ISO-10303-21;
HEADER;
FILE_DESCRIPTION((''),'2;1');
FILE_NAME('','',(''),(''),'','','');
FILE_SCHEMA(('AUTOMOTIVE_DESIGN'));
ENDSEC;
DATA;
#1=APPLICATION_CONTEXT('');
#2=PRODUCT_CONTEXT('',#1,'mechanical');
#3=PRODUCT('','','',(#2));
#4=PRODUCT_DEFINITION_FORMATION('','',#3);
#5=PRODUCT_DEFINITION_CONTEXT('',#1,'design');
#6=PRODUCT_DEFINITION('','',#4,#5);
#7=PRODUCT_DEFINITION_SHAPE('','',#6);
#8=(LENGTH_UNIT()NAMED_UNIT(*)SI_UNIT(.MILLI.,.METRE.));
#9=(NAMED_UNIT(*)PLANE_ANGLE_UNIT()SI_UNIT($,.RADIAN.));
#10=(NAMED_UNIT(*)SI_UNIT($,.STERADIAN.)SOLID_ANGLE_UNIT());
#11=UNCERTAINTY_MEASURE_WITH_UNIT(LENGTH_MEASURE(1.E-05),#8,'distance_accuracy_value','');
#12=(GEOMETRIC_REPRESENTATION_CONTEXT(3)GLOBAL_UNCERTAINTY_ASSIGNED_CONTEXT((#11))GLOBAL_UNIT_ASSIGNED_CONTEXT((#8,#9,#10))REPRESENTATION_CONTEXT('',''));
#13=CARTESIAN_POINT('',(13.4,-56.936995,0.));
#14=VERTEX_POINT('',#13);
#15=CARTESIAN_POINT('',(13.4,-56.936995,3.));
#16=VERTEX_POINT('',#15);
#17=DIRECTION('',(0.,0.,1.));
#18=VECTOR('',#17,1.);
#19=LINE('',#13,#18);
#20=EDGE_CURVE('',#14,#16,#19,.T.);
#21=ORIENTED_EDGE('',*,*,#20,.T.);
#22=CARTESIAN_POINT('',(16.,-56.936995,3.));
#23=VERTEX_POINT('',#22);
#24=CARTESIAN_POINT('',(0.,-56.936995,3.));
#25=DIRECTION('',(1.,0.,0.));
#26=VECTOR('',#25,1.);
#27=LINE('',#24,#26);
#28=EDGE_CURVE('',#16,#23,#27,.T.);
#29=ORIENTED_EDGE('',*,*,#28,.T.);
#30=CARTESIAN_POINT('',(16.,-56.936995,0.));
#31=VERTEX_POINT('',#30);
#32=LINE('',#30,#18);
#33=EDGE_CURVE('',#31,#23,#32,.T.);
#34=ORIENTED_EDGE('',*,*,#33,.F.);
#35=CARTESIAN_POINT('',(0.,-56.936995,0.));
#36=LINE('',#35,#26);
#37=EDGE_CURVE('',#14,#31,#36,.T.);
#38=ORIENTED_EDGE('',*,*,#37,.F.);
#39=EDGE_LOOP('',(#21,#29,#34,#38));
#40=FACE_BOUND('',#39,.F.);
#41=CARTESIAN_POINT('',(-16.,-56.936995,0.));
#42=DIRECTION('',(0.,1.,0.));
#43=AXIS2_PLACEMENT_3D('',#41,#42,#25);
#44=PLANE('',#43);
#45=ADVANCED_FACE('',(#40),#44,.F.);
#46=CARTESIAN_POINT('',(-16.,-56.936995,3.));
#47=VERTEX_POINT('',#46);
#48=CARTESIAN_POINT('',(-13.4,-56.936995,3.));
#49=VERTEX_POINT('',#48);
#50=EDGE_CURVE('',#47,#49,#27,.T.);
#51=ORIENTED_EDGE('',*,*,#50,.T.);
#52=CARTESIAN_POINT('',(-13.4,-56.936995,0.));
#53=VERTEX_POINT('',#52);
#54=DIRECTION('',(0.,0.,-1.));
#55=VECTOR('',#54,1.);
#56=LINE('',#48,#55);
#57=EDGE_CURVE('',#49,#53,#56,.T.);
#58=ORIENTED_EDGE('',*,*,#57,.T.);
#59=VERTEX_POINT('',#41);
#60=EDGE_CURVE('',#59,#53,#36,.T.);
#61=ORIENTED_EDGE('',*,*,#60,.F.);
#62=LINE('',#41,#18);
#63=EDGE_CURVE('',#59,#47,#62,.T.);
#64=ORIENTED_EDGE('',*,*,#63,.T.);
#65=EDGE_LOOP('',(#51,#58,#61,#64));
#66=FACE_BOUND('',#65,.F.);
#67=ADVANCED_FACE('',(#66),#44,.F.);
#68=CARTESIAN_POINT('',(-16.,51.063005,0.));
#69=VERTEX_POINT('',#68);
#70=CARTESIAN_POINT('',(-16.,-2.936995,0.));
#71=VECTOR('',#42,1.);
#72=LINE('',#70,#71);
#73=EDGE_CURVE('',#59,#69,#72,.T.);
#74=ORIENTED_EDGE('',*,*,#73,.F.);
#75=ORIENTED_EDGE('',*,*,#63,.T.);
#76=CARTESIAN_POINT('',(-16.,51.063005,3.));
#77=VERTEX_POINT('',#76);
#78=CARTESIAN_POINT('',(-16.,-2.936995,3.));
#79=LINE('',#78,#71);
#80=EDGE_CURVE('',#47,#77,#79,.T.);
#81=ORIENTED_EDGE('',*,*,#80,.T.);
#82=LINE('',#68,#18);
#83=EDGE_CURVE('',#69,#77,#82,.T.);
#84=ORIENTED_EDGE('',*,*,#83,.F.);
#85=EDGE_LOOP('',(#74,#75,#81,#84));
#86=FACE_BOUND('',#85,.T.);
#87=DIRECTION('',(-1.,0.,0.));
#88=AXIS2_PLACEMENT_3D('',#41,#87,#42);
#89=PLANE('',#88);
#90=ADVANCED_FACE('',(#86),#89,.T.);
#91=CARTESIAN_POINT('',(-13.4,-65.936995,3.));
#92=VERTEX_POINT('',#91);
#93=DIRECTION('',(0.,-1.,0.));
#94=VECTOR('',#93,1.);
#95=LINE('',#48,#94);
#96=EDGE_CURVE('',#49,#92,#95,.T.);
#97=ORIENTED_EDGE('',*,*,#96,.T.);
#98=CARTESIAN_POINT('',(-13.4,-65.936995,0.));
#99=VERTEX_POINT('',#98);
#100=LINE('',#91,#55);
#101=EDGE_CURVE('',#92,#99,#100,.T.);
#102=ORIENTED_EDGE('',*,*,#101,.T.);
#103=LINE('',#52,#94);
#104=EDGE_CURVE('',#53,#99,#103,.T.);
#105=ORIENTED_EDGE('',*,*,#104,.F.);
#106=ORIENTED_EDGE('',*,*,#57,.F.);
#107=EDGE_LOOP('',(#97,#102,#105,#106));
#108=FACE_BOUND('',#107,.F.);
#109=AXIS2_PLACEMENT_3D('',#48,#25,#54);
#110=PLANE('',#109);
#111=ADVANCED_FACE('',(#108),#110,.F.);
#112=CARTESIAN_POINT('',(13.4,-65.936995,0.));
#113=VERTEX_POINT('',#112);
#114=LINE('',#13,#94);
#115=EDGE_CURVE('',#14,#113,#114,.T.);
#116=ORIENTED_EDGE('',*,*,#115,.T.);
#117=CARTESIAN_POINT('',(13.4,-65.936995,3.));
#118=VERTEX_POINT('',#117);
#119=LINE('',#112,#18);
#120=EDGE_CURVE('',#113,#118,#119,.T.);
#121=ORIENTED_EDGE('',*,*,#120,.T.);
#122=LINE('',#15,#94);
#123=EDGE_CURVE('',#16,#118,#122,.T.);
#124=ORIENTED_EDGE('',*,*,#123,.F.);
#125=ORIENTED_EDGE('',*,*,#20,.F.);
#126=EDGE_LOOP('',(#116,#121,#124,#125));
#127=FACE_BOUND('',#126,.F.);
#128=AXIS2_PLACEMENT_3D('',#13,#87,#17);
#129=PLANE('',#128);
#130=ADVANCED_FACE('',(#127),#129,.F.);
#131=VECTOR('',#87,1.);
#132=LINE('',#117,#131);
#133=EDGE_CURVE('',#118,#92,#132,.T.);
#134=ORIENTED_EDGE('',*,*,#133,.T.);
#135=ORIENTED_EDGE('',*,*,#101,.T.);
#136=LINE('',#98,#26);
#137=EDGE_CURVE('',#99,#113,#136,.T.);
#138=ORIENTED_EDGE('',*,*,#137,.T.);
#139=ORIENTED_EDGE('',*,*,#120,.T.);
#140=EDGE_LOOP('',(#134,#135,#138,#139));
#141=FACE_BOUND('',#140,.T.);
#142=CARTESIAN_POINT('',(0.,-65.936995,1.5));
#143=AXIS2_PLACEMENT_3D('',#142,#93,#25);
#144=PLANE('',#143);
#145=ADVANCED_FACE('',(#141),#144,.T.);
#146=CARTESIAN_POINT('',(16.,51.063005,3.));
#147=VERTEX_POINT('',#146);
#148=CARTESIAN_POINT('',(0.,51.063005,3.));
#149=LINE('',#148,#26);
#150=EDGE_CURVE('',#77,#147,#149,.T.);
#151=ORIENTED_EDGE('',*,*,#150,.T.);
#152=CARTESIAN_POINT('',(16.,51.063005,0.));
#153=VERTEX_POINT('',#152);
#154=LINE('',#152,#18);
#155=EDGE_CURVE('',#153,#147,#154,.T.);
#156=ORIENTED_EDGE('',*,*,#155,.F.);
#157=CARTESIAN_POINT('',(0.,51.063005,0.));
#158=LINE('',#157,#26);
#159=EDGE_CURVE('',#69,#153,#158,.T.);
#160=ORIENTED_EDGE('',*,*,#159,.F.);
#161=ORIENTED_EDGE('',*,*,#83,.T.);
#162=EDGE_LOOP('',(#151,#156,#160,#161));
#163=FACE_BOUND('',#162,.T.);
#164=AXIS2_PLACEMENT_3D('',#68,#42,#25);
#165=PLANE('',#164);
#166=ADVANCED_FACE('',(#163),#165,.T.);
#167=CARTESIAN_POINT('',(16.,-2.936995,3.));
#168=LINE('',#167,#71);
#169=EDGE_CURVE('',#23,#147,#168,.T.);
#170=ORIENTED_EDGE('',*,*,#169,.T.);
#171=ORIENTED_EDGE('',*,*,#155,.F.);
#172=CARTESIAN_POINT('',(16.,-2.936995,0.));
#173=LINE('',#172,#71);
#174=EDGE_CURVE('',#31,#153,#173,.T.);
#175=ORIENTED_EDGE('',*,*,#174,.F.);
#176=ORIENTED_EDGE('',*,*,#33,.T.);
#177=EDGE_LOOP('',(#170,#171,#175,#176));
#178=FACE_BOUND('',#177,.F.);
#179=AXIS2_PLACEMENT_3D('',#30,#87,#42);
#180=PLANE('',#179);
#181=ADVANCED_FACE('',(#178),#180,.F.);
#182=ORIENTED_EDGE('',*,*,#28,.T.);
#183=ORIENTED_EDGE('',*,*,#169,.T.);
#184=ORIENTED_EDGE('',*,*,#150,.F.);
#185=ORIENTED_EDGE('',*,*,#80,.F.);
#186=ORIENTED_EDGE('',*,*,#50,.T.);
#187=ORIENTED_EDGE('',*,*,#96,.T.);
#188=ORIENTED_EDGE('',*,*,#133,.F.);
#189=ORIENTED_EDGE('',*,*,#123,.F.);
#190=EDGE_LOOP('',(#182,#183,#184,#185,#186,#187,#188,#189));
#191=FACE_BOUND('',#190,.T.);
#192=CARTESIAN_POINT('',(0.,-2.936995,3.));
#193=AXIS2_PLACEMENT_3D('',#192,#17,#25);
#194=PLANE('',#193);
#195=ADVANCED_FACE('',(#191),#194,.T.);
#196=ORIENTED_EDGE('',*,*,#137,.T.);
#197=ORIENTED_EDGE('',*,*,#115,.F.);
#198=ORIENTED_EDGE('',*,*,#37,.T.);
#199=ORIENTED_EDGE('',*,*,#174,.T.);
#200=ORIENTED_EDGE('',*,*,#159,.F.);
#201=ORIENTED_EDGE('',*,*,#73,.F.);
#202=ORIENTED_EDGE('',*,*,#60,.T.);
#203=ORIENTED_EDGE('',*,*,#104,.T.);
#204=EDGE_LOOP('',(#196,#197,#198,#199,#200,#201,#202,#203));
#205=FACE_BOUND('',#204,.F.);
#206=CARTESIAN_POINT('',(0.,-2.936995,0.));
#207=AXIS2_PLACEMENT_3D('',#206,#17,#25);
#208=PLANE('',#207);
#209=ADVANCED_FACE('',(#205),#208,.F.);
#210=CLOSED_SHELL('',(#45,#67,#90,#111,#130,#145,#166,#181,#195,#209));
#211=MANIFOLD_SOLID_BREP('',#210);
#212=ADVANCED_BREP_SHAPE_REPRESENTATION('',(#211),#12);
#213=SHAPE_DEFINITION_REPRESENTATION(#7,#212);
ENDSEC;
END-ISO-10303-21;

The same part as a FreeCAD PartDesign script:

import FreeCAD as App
import Part
import Sketcher

V = App.Vector
Q = App.Units.Quantity


def add_polygon(sketch, points):
    """Adds a closed chain of lines whose ends are joined by coincident constraints."""
    first, n = sketch.GeometryCount, len(points)
    for a, b in zip(points, points[1:] + points[:1]):
        sketch.addGeometry(Part.LineSegment(App.Vector(*a, 0), App.Vector(*b, 0)), False)
    for i in range(n):
        sketch.addConstraint(Sketcher.Constraint("Coincident", first + i, 2, first + (i + 1) % n, 1))

doc = App.newDocument("Part")
body = doc.addObject("PartDesign::Body", "Body")

# Sketch on XY plane
sketch1 = body.newObject("Sketcher::SketchObject", "Sketch")
sketch1.AttachmentSupport = (doc.getObject("XY_Plane"), [""])
sketch1.MapMode = "FlatFace"
add_polygon(sketch1, [(-16, 51), (-16, -57), (16, -57), (16, 51)])  # lines 0-3
sketch1.addConstraint([
    Sketcher.Constraint("Vertical", 0),
    Sketcher.Constraint("Horizontal", 1),
    Sketcher.Constraint("Vertical", 2),
    Sketcher.Constraint("Horizontal", 3),
    Sketcher.Constraint("DistanceX", 1, 1, 1, 2, Q("32 mm")),
    Sketcher.Constraint("DistanceY", 0, 2, 0, 1, Q("108 mm")),
    Sketcher.Constraint("DistanceX", 0, 2, -1, 1, Q("16 mm")),
    Sketcher.Constraint("DistanceY", 0, 2, -1, 1, Q("56.936995 mm")),
])
pad1 = body.newObject("PartDesign::Pad", "Pad")
pad1.Profile = sketch1
pad1.Length = 3

# Sketch on XZ plane
sketch2 = body.newObject("Sketcher::SketchObject", "Sketch001")
sketch2.AttachmentSupport = (doc.getObject("XZ_Plane"), [""])
sketch2.MapMode = "FlatFace"
sketch2.AttachmentOffset = App.Placement(V(0, 0, 56.936995), App.Rotation())
add_polygon(sketch2, [(13.4, 3), (-13.4, 3), (-13.4, 0), (13.4, 0)])  # lines 0-3
sketch2.addConstraint([
    Sketcher.Constraint("Horizontal", 0),
    Sketcher.Constraint("Vertical", 1),
    Sketcher.Constraint("Horizontal", 2),
    Sketcher.Constraint("Vertical", 3),
    Sketcher.Constraint("Symmetric", 1, 2, 2, 2, -1, 1),
    Sketcher.Constraint("DistanceY", 1, 2, 1, 1, Q("3 mm")),
    Sketcher.Constraint("DistanceX", 0, 2, 0, 1, Q("26.8 mm")),
])
pad2 = body.newObject("PartDesign::Pad", "Pad001")
pad2.Profile = sketch2
pad2.Length = 9

doc.recompute()
